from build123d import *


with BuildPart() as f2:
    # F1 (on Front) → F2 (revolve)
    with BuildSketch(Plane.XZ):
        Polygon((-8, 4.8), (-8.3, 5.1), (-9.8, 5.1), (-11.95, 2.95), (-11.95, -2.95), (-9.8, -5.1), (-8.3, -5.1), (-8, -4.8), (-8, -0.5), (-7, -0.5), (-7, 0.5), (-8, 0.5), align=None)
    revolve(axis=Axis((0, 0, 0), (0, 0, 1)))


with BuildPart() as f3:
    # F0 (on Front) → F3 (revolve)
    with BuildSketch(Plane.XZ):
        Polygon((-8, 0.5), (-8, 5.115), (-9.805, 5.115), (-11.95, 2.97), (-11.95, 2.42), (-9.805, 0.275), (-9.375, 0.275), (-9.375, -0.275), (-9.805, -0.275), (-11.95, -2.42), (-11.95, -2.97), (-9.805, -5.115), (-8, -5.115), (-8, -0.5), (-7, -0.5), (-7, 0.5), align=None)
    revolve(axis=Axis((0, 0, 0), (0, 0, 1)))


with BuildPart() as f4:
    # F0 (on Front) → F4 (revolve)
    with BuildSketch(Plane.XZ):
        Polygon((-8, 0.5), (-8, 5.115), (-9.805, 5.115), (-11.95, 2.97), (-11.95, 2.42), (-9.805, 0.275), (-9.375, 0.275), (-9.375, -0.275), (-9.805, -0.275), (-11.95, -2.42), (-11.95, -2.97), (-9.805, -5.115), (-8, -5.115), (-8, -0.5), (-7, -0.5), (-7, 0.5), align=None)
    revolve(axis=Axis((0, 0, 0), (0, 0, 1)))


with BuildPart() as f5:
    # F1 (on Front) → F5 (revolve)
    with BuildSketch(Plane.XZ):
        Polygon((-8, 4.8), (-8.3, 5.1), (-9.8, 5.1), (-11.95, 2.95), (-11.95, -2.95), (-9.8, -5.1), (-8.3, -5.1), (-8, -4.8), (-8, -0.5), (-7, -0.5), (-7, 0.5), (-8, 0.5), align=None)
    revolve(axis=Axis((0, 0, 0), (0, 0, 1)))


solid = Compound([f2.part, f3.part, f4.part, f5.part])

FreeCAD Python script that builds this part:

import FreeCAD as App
import Part
import Sketcher

V = App.Vector
Q = App.Units.Quantity

doc = App.newDocument("Part")
body = doc.addObject("PartDesign::Body", "Body")

# Sketch on XZ plane
sketch1 = body.newObject("Sketcher::SketchObject", "Sketch")
sketch1.AttachmentSupport = (doc.getObject("XZ_Plane"), [""])
sketch1.MapMode = "FlatFace"
sketch1.addGeometry([
    Part.LineSegment(V(-8, 4.8, 0), V(-8.3, 5.1, 0)),  # 0
    Part.LineSegment(V(-8.3, 5.1, 0), V(-9.8, 5.1, 0)),  # 1
    Part.LineSegment(V(-9.8, 5.1, 0), V(-11.95, 2.95, 0)),  # 2
    Part.LineSegment(V(-11.95, 2.95, 0), V(-11.95, -2.95, 0)),  # 3
    Part.LineSegment(V(-11.95, -2.95, 0), V(-9.8, -5.1, 0)),  # 4
    Part.LineSegment(V(-9.8, -5.1, 0), V(-8.3, -5.1, 0)),  # 5
    Part.LineSegment(V(-8.3, -5.1, 0), V(-8, -4.8, 0)),  # 6
    Part.LineSegment(V(-8, -4.8, 0), V(-8, -0.5, 0)),  # 7
    Part.LineSegment(V(-8, -0.5, 0), V(-7, -0.5, 0)),  # 8
    Part.LineSegment(V(-7, -0.5, 0), V(-7, 0.5, 0)),  # 9
    Part.LineSegment(V(-7, 0.5, 0), V(-8, 0.5, 0)),  # 10
    Part.LineSegment(V(-8, 0.5, 0), V(-8, 4.8, 0)),  # 11
], False)
sketch1.addConstraint([
    Sketcher.Constraint("Coincident", 0, 2, 1, 1),
    Sketcher.Constraint("Coincident", 1, 2, 2, 1),
    Sketcher.Constraint("Coincident", 2, 2, 3, 1),
    Sketcher.Constraint("Coincident", 3, 2, 4, 1),
    Sketcher.Constraint("Coincident", 4, 2, 5, 1),
    Sketcher.Constraint("Coincident", 5, 2, 6, 1),
    Sketcher.Constraint("Coincident", 6, 2, 7, 1),
    Sketcher.Constraint("Coincident", 7, 2, 8, 1),
    Sketcher.Constraint("Coincident", 8, 2, 9, 1),
    Sketcher.Constraint("Coincident", 9, 2, 10, 1),
    Sketcher.Constraint("Coincident", 10, 2, 11, 1),
    Sketcher.Constraint("Coincident", 11, 2, 0, 1),
    Sketcher.Constraint("Horizontal", 1),
    Sketcher.Constraint("Vertical", 3),
    Sketcher.Constraint("Horizontal", 5),
    Sketcher.Constraint("Vertical", 7),
    Sketcher.Constraint("Horizontal", 8),
    Sketcher.Constraint("Vertical", 9),
    Sketcher.Constraint("Horizontal", 10),
    Sketcher.Constraint("Vertical", 11),
    Sketcher.Constraint("Symmetric", 1, 2, 4, 2, -1),
    Sketcher.Constraint("Symmetric", 7, 2, 10, 2, -1),
    Sketcher.Constraint("Perpendicular", 0, 2),
    Sketcher.Constraint("Perpendicular", 2, 4),
    Sketcher.Constraint("Perpendicular", 4, 6),
    Sketcher.Constraint("Vertical", 0, 2, 5, 2),
    Sketcher.Constraint("Equal", 10, 9),
    Sketcher.Constraint("Equal", 7, 11),
    Sketcher.Constraint("DistanceX", 8, 1, 8, 2, Q("1 mm")),
    Sketcher.Constraint("DistanceX", 1, 2, 1, 1, Q("1.5 mm")),
    Sketcher.Constraint("DistanceY", 3, 2, 3, 1, Q("5.9 mm")),
    Sketcher.Constraint("DistanceY", 7, 1, 7, 2, Q("4.3 mm")),
    Sketcher.Constraint("DistanceX", 6, 2, -1, 1, Q("8 mm")),
    Sketcher.Constraint("DistanceX", 0, 2, -1, 1, Q("8.3 mm")),
])
revolution = body.newObject("PartDesign::Revolution", "Revolution")
revolution.Profile = sketch1
revolution.ReferenceAxis = (sketch1, ["V_Axis"])
revolution.Angle = 360
body2 = doc.addObject("PartDesign::Body", "Body001")

# Sketch on XZ plane
sketch2 = body2.newObject("Sketcher::SketchObject", "Sketch001")
sketch2.AttachmentSupport = (doc.getObject("XZ_Plane001"), [""])
sketch2.MapMode = "FlatFace"
sketch2.addGeometry([
    Part.LineSegment(V(-8, 0.5, 0), V(-8, 5.12, 0)),  # 0
    Part.LineSegment(V(-8, 5.12, 0), V(-9.8, 5.12, 0)),  # 1
    Part.LineSegment(V(-9.8, 5.12, 0), V(-11.95, 2.97, 0)),  # 2
    Part.LineSegment(V(-11.95, 2.97, 0), V(-11.95, 2.42, 0)),  # 3
    Part.LineSegment(V(-11.95, 2.42, 0), V(-9.8, 0.28, 0)),  # 4
    Part.LineSegment(V(-9.8, 0.28, 0), V(-9.38, 0.28, 0)),  # 5
    Part.LineSegment(V(-9.38, 0.28, 0), V(-9.38, -0.28, 0)),  # 6
    Part.LineSegment(V(-9.38, -0.28, 0), V(-9.8, -0.28, 0)),  # 7
    Part.LineSegment(V(-9.8, -0.28, 0), V(-11.95, -2.42, 0)),  # 8
    Part.LineSegment(V(-11.95, -2.42, 0), V(-11.95, -2.97, 0)),  # 9
    Part.LineSegment(V(-11.95, -2.97, 0), V(-9.8, -5.12, 0)),  # 10
    Part.LineSegment(V(-9.8, -5.12, 0), V(-8, -5.12, 0)),  # 11
    Part.LineSegment(V(-8, -5.12, 0), V(-8, -0.5, 0)),  # 12
    Part.LineSegment(V(-8, -0.5, 0), V(-7, -0.5, 0)),  # 13
    Part.LineSegment(V(-7, -0.5, 0), V(-7, 0.5, 0)),  # 14
    Part.LineSegment(V(-7, 0.5, 0), V(-8, 0.5, 0)),  # 15
], False)
sketch2.addConstraint([
    Sketcher.Constraint("Coincident", 0, 2, 1, 1),
    Sketcher.Constraint("Coincident", 1, 2, 2, 1),
    Sketcher.Constraint("Coincident", 2, 2, 3, 1),
    Sketcher.Constraint("Coincident", 3, 2, 4, 1),
    Sketcher.Constraint("Coincident", 4, 2, 5, 1),
    Sketcher.Constraint("Coincident", 5, 2, 6, 1),
    Sketcher.Constraint("Coincident", 6, 2, 7, 1),
    Sketcher.Constraint("Coincident", 7, 2, 8, 1),
    Sketcher.Constraint("Coincident", 8, 2, 9, 1),
    Sketcher.Constraint("Coincident", 9, 2, 10, 1),
    Sketcher.Constraint("Coincident", 10, 2, 11, 1),
    Sketcher.Constraint("Coincident", 11, 2, 12, 1),
    Sketcher.Constraint("Coincident", 12, 2, 13, 1),
    Sketcher.Constraint("Coincident", 13, 2, 14, 1),
    Sketcher.Constraint("Coincident", 14, 2, 15, 1),
    Sketcher.Constraint("Coincident", 15, 2, 0, 1),
    Sketcher.Constraint("Vertical", 0),
    Sketcher.Constraint("Horizontal", 1),
    Sketcher.Constraint("Vertical", 3),
    Sketcher.Constraint("Horizontal", 5),
    Sketcher.Constraint("Vertical", 6),
    Sketcher.Constraint("Horizontal", 7),
    Sketcher.Constraint("Vertical", 9),
    Sketcher.Constraint("Horizontal", 11),
    Sketcher.Constraint("Vertical", 12),
    Sketcher.Constraint("Horizontal", 13),
    Sketcher.Constraint("Vertical", 14),
    Sketcher.Constraint("Horizontal", 15),
    Sketcher.Constraint("Symmetric", 4, 2, 7, 2, -1),
    Sketcher.Constraint("Symmetric", 3, 2, 8, 2, -1),
    Sketcher.Constraint("Symmetric", 1, 2, 10, 2, -1),
    Sketcher.Constraint("Symmetric", 12, 2, 15, 2, -1),
    Sketcher.Constraint("Perpendicular", 2, 4),
    Sketcher.Constraint("Perpendicular", 4, 8),
    Sketcher.Constraint("Perpendicular", 8, 10),
    Sketcher.Constraint("Vertical", 1, 2, 4, 2),
    Sketcher.Constraint("Equal", 3, 6),
    Sketcher.Constraint("Equal", 15, 14),
    Sketcher.Constraint("DistanceX", 13, 1, 13, 2, Q("1 mm")),
    Sketcher.Constraint("DistanceX", 0, 2, -1, 1, Q("8 mm")),
    Sketcher.Constraint("DistanceX", 5, 1, 5, 2, Q("0.43 mm")),
    Sketcher.Constraint("DistanceY", 3, 2, 3, 1, Q("0.55 mm")),
    Sketcher.Constraint("DistanceX", 1, 2, 1, 1, Q("1.805 mm")),
    Sketcher.Constraint("DistanceY", 0, 1, 0, 2, Q("4.615 mm")),
])
revolution2 = body2.newObject("PartDesign::Revolution", "Revolution001")
revolution2.Profile = sketch2
revolution2.ReferenceAxis = (sketch2, ["V_Axis"])
revolution2.Angle = 360
body3 = doc.addObject("PartDesign::Body", "Body002")

# Sketch on XZ plane
sketch3 = body3.newObject("Sketcher::SketchObject", "Sketch002")
sketch3.AttachmentSupport = (doc.getObject("XZ_Plane002"), [""])
sketch3.MapMode = "FlatFace"
sketch3.addGeometry([
    Part.LineSegment(V(-8, 0.5, 0), V(-8, 5.12, 0)),  # 0
    Part.LineSegment(V(-8, 5.12, 0), V(-9.8, 5.12, 0)),  # 1
    Part.LineSegment(V(-9.8, 5.12, 0), V(-11.95, 2.97, 0)),  # 2
    Part.LineSegment(V(-11.95, 2.97, 0), V(-11.95, 2.42, 0)),  # 3
    Part.LineSegment(V(-11.95, 2.42, 0), V(-9.8, 0.28, 0)),  # 4
    Part.LineSegment(V(-9.8, 0.28, 0), V(-9.38, 0.28, 0)),  # 5
    Part.LineSegment(V(-9.38, 0.28, 0), V(-9.38, -0.28, 0)),  # 6
    Part.LineSegment(V(-9.38, -0.28, 0), V(-9.8, -0.28, 0)),  # 7
    Part.LineSegment(V(-9.8, -0.28, 0), V(-11.95, -2.42, 0)),  # 8
    Part.LineSegment(V(-11.95, -2.42, 0), V(-11.95, -2.97, 0)),  # 9
    Part.LineSegment(V(-11.95, -2.97, 0), V(-9.8, -5.12, 0)),  # 10
    Part.LineSegment(V(-9.8, -5.12, 0), V(-8, -5.12, 0)),  # 11
    Part.LineSegment(V(-8, -5.12, 0), V(-8, -0.5, 0)),  # 12
    Part.LineSegment(V(-8, -0.5, 0), V(-7, -0.5, 0)),  # 13
    Part.LineSegment(V(-7, -0.5, 0), V(-7, 0.5, 0)),  # 14
    Part.LineSegment(V(-7, 0.5, 0), V(-8, 0.5, 0)),  # 15
], False)
sketch3.addConstraint([
    Sketcher.Constraint("Coincident", 0, 2, 1, 1),
    Sketcher.Constraint("Coincident", 1, 2, 2, 1),
    Sketcher.Constraint("Coincident", 2, 2, 3, 1),
    Sketcher.Constraint("Coincident", 3, 2, 4, 1),
    Sketcher.Constraint("Coincident", 4, 2, 5, 1),
    Sketcher.Constraint("Coincident", 5, 2, 6, 1),
    Sketcher.Constraint("Coincident", 6, 2, 7, 1),
    Sketcher.Constraint("Coincident", 7, 2, 8, 1),
    Sketcher.Constraint("Coincident", 8, 2, 9, 1),
    Sketcher.Constraint("Coincident", 9, 2, 10, 1),
    Sketcher.Constraint("Coincident", 10, 2, 11, 1),
    Sketcher.Constraint("Coincident", 11, 2, 12, 1),
    Sketcher.Constraint("Coincident", 12, 2, 13, 1),
    Sketcher.Constraint("Coincident", 13, 2, 14, 1),
    Sketcher.Constraint("Coincident", 14, 2, 15, 1),
    Sketcher.Constraint("Coincident", 15, 2, 0, 1),
    Sketcher.Constraint("Vertical", 0),
    Sketcher.Constraint("Horizontal", 1),
    Sketcher.Constraint("Vertical", 3),
    Sketcher.Constraint("Horizontal", 5),
    Sketcher.Constraint("Vertical", 6),
    Sketcher.Constraint("Horizontal", 7),
    Sketcher.Constraint("Vertical", 9),
    Sketcher.Constraint("Horizontal", 11),
    Sketcher.Constraint("Vertical", 12),
    Sketcher.Constraint("Horizontal", 13),
    Sketcher.Constraint("Vertical", 14),
    Sketcher.Constraint("Horizontal", 15),
    Sketcher.Constraint("Symmetric", 4, 2, 7, 2, -1),
    Sketcher.Constraint("Symmetric", 3, 2, 8, 2, -1),
    Sketcher.Constraint("Symmetric", 1, 2, 10, 2, -1),
    Sketcher.Constraint("Symmetric", 12, 2, 15, 2, -1),
    Sketcher.Constraint("Perpendicular", 2, 4),
    Sketcher.Constraint("Perpendicular", 4, 8),
    Sketcher.Constraint("Perpendicular", 8, 10),
    Sketcher.Constraint("Vertical", 1, 2, 4, 2),
    Sketcher.Constraint("Equal", 3, 6),
    Sketcher.Constraint("Equal", 15, 14),
    Sketcher.Constraint("DistanceX", 13, 1, 13, 2, Q("1 mm")),
    Sketcher.Constraint("DistanceX", 0, 2, -1, 1, Q("8 mm")),
    Sketcher.Constraint("DistanceX", 5, 1, 5, 2, Q("0.43 mm")),
    Sketcher.Constraint("DistanceY", 3, 2, 3, 1, Q("0.55 mm")),
    Sketcher.Constraint("DistanceX", 1, 2, 1, 1, Q("1.805 mm")),
    Sketcher.Constraint("DistanceY", 0, 1, 0, 2, Q("4.615 mm")),
])
revolution3 = body3.newObject("PartDesign::Revolution", "Revolution002")
revolution3.Profile = sketch3
revolution3.ReferenceAxis = (sketch3, ["V_Axis"])
revolution3.Angle = 360
body4 = doc.addObject("PartDesign::Body", "Body003")

# Sketch on XZ plane
sketch4 = body4.newObject("Sketcher::SketchObject", "Sketch003")
sketch4.AttachmentSupport = (doc.getObject("XZ_Plane003"), [""])
sketch4.MapMode = "FlatFace"
sketch4.addGeometry([
    Part.LineSegment(V(-8, 4.8, 0), V(-8.3, 5.1, 0)),  # 0
    Part.LineSegment(V(-8.3, 5.1, 0), V(-9.8, 5.1, 0)),  # 1
    Part.LineSegment(V(-9.8, 5.1, 0), V(-11.95, 2.95, 0)),  # 2
    Part.LineSegment(V(-11.95, 2.95, 0), V(-11.95, -2.95, 0)),  # 3
    Part.LineSegment(V(-11.95, -2.95, 0), V(-9.8, -5.1, 0)),  # 4
    Part.LineSegment(V(-9.8, -5.1, 0), V(-8.3, -5.1, 0)),  # 5
    Part.LineSegment(V(-8.3, -5.1, 0), V(-8, -4.8, 0)),  # 6
    Part.LineSegment(V(-8, -4.8, 0), V(-8, -0.5, 0)),  # 7
    Part.LineSegment(V(-8, -0.5, 0), V(-7, -0.5, 0)),  # 8
    Part.LineSegment(V(-7, -0.5, 0), V(-7, 0.5, 0)),  # 9
    Part.LineSegment(V(-7, 0.5, 0), V(-8, 0.5, 0)),  # 10
    Part.LineSegment(V(-8, 0.5, 0), V(-8, 4.8, 0)),  # 11
], False)
sketch4.addConstraint([
    Sketcher.Constraint("Coincident", 0, 2, 1, 1),
    Sketcher.Constraint("Coincident", 1, 2, 2, 1),
    Sketcher.Constraint("Coincident", 2, 2, 3, 1),
    Sketcher.Constraint("Coincident", 3, 2, 4, 1),
    Sketcher.Constraint("Coincident", 4, 2, 5, 1),
    Sketcher.Constraint("Coincident", 5, 2, 6, 1),
    Sketcher.Constraint("Coincident", 6, 2, 7, 1),
    Sketcher.Constraint("Coincident", 7, 2, 8, 1),
    Sketcher.Constraint("Coincident", 8, 2, 9, 1),
    Sketcher.Constraint("Coincident", 9, 2, 10, 1),
    Sketcher.Constraint("Coincident", 10, 2, 11, 1),
    Sketcher.Constraint("Coincident", 11, 2, 0, 1),
    Sketcher.Constraint("Horizontal", 1),
    Sketcher.Constraint("Vertical", 3),
    Sketcher.Constraint("Horizontal", 5),
    Sketcher.Constraint("Vertical", 7),
    Sketcher.Constraint("Horizontal", 8),
    Sketcher.Constraint("Vertical", 9),
    Sketcher.Constraint("Horizontal", 10),
    Sketcher.Constraint("Vertical", 11),
    Sketcher.Constraint("Symmetric", 1, 2, 4, 2, -1),
    Sketcher.Constraint("Symmetric", 7, 2, 10, 2, -1),
    Sketcher.Constraint("Perpendicular", 0, 2),
    Sketcher.Constraint("Perpendicular", 2, 4),
    Sketcher.Constraint("Perpendicular", 4, 6),
    Sketcher.Constraint("Vertical", 0, 2, 5, 2),
    Sketcher.Constraint("Equal", 10, 9),
    Sketcher.Constraint("Equal", 7, 11),
    Sketcher.Constraint("DistanceX", 8, 1, 8, 2, Q("1 mm")),
    Sketcher.Constraint("DistanceX", 1, 2, 1, 1, Q("1.5 mm")),
    Sketcher.Constraint("DistanceY", 3, 2, 3, 1, Q("5.9 mm")),
    Sketcher.Constraint("DistanceY", 7, 1, 7, 2, Q("4.3 mm")),
    Sketcher.Constraint("DistanceX", 6, 2, -1, 1, Q("8 mm")),
    Sketcher.Constraint("DistanceX", 0, 2, -1, 1, Q("8.3 mm")),
])
revolution4 = body4.newObject("PartDesign::Revolution", "Revolution003")
revolution4.Profile = sketch4
revolution4.ReferenceAxis = (sketch4, ["V_Axis"])
revolution4.Angle = 360

doc.recompute()
